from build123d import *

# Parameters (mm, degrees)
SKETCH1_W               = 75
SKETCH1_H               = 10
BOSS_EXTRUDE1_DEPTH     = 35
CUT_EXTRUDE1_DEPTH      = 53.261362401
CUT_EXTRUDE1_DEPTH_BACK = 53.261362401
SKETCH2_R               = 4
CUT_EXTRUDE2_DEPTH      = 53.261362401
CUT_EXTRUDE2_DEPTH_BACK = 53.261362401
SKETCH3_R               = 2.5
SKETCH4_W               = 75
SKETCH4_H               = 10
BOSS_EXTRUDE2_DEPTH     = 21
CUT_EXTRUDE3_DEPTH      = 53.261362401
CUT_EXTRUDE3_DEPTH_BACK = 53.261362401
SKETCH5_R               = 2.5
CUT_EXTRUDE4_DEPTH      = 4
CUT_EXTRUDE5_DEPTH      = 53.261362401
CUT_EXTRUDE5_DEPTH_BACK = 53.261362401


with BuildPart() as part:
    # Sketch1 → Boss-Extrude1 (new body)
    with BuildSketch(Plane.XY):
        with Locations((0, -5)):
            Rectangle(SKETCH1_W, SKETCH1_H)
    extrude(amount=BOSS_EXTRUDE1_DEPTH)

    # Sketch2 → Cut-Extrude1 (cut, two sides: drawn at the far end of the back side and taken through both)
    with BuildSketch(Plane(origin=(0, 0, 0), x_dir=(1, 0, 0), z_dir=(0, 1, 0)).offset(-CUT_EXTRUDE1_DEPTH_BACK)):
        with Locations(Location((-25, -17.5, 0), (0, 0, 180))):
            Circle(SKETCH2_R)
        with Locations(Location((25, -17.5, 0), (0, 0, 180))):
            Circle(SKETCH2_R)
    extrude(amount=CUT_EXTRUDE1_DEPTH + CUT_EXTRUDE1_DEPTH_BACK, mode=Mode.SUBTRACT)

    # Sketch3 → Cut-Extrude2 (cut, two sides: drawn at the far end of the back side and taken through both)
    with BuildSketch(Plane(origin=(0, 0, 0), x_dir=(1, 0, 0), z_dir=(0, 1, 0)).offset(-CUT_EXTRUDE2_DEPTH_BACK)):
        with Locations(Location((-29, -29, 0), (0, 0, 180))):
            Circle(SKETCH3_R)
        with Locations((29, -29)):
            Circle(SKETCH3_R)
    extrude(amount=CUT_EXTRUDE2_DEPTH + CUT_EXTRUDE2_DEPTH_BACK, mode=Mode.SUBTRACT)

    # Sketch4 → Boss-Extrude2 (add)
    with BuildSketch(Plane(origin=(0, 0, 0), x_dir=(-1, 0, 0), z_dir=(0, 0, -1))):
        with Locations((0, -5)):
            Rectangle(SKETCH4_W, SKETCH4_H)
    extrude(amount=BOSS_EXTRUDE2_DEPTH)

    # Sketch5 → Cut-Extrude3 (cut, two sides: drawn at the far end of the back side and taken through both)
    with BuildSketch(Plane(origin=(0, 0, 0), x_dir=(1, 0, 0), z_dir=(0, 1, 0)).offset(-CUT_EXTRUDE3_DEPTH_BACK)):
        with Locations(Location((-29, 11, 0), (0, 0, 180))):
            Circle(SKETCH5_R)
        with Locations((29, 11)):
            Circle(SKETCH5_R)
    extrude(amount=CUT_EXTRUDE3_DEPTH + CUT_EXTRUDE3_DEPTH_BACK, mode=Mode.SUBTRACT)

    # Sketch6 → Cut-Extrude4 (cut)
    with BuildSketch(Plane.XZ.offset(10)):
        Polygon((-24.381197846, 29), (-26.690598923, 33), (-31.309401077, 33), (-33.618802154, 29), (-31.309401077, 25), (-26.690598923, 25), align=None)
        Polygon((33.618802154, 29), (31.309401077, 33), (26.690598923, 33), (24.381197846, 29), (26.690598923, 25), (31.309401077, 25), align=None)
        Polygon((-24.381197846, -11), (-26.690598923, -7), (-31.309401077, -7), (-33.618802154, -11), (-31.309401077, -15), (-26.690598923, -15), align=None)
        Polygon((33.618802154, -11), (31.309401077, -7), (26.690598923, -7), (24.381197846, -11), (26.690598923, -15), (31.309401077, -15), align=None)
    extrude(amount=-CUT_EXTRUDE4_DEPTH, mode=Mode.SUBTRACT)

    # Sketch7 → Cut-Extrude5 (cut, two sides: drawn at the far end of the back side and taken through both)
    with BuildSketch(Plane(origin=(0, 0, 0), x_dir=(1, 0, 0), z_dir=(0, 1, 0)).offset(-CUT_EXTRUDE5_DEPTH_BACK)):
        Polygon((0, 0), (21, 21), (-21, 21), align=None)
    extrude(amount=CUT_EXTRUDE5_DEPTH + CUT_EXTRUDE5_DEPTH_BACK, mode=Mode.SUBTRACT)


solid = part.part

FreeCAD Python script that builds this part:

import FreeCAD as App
import Part
import Sketcher
Q = App.Units.Quantity

doc = App.newDocument("Part")
body = doc.addObject("PartDesign::Body", "Body")

sketch1 = body.newObject("Sketcher::SketchObject", "Sketch")
sketch1.AttachmentSupport = (doc.getObject("XY_Plane"), [""])
sketch1.MapMode = "FlatFace"
sketch1.addGeometry([
    Part.LineSegment(App.Vector(-37.5, 0, 0), App.Vector(-37.5, -10, 0)),
    Part.LineSegment(App.Vector(-37.5, -10, 0), App.Vector(37.5, -10, 0)),
    Part.LineSegment(App.Vector(37.5, -10, 0), App.Vector(37.5, 0, 0)),
    Part.LineSegment(App.Vector(37.5, 0, 0), App.Vector(-37.5, 0, 0)),
], False)
sketch1.addConstraint([
    Sketcher.Constraint("Coincident", 0, 2, 1, 1),
    Sketcher.Constraint("Coincident", 1, 2, 2, 1),
    Sketcher.Constraint("Coincident", 2, 2, 3, 1),
    Sketcher.Constraint("Coincident", 3, 2, 0, 1),
    Sketcher.Constraint("Vertical", 0),
    Sketcher.Constraint("Horizontal", 1),
    Sketcher.Constraint("Vertical", 2),
    Sketcher.Constraint("Horizontal", 3),
    Sketcher.Constraint("Symmetric", 2, 2, 3, 2, -1, 1),
    Sketcher.Constraint("DistanceX", 1, 1, 1, 2, 75.0),
    Sketcher.Constraint("DistanceY", 0, 2, 0, 1, 10.0),
])
pad1 = body.newObject("PartDesign::Pad", "Pad")
pad1.Profile = sketch1
pad1.Length = 35

sketch2 = body.newObject("Sketcher::SketchObject", "Sketch001")
sketch2.AttachmentSupport = (doc.getObject("XZ_Plane"), [""])
sketch2.MapMode = "FlatFace"
sketch2.addGeometry([
    Part.Circle(App.Vector(-25, 17.5, 0), App.Vector(0, 0, 1), 4),
    Part.Circle(App.Vector(25, 17.5, 0), App.Vector(0, 0, 1), 4),
], False)
sketch2.addConstraint([
    Sketcher.Constraint("Equal", 0, 1),
    Sketcher.Constraint("Symmetric", 0, 3, 1, 3, -2),
    Sketcher.Constraint("Diameter", 0, 8.0),
    Sketcher.Constraint("DistanceX", 0, 3, -1, 1, 25.0),
    Sketcher.Constraint("DistanceY", -1, 1, 0, 3, 17.5),
])
pocket1 = body.newObject("PartDesign::Pocket", "Pocket")
pocket1.Profile = sketch2
pocket1.Type = "ThroughAll"
pocket1.Midplane = True

sketch3 = body.newObject("Sketcher::SketchObject", "Sketch002")
sketch3.AttachmentSupport = (doc.getObject("XZ_Plane"), [""])
sketch3.MapMode = "FlatFace"
sketch3.addGeometry([
    Part.Circle(App.Vector(-29, 29, 0), App.Vector(0, 0, 1), 2.5),
    Part.Circle(App.Vector(29, 29, 0), App.Vector(0, 0, 1), 2.5),
], False)
sketch3.addConstraint([
    Sketcher.Constraint("Equal", 0, 1),
    Sketcher.Constraint("Symmetric", 0, 3, 1, 3, -2),
    Sketcher.Constraint("Diameter", 0, 5.0),
    Sketcher.Constraint("DistanceX", 0, 3, -1, 1, 29.0),
    Sketcher.Constraint("DistanceY", -1, 1, 0, 3, 29.0),
])
pocket2 = body.newObject("PartDesign::Pocket", "Pocket001")
pocket2.Profile = sketch3
pocket2.Type = "ThroughAll"
pocket2.Midplane = True

sketch4 = body.newObject("Sketcher::SketchObject", "Sketch003")
sketch4.AttachmentSupport = (doc.getObject("XY_Plane"), [""])
sketch4.MapMode = "FlatFace"
sketch4.addGeometry([
    Part.LineSegment(App.Vector(37.5, 0, 0), App.Vector(37.5, -10, 0)),
    Part.LineSegment(App.Vector(37.5, -10, 0), App.Vector(-37.5, -10, 0)),
    Part.LineSegment(App.Vector(-37.5, -10, 0), App.Vector(-37.5, 0, 0)),
    Part.LineSegment(App.Vector(-37.5, 0, 0), App.Vector(37.5, 0, 0)),
], False)
sketch4.addConstraint([
    Sketcher.Constraint("Coincident", 0, 2, 1, 1),
    Sketcher.Constraint("Coincident", 1, 2, 2, 1),
    Sketcher.Constraint("Coincident", 2, 2, 3, 1),
    Sketcher.Constraint("Coincident", 3, 2, 0, 1),
    Sketcher.Constraint("Vertical", 0),
    Sketcher.Constraint("Horizontal", 1),
    Sketcher.Constraint("Vertical", 2),
    Sketcher.Constraint("Horizontal", 3),
    Sketcher.Constraint("Symmetric", 2, 2, 3, 2, -1, 1),
    Sketcher.Constraint("DistanceX", 1, 2, 1, 1, 75.0),
    Sketcher.Constraint("DistanceY", 0, 2, 0, 1, 10.0),
])
pad2 = body.newObject("PartDesign::Pad", "Pad001")
pad2.Profile = sketch4
pad2.Length = 21
pad2.Reversed = True

sketch5 = body.newObject("Sketcher::SketchObject", "Sketch004")
sketch5.AttachmentSupport = (doc.getObject("XZ_Plane"), [""])
sketch5.MapMode = "FlatFace"
sketch5.addGeometry([
    Part.Circle(App.Vector(-29, -11, 0), App.Vector(0, 0, 1), 2.5),
    Part.Circle(App.Vector(29, -11, 0), App.Vector(0, 0, 1), 2.5),
], False)
sketch5.addConstraint([
    Sketcher.Constraint("Equal", 0, 1),
    Sketcher.Constraint("Symmetric", 0, 3, 1, 3, -2),
    Sketcher.Constraint("Diameter", 0, 5.0),
    Sketcher.Constraint("DistanceX", 0, 3, -1, 1, 29.0),
    Sketcher.Constraint("DistanceY", 0, 3, -1, 1, 11.0),
])
pocket3 = body.newObject("PartDesign::Pocket", "Pocket002")
pocket3.Profile = sketch5
pocket3.Type = "ThroughAll"
pocket3.Midplane = True

sketch6 = body.newObject("Sketcher::SketchObject", "Sketch005")
sketch6.AttachmentSupport = (doc.getObject("XZ_Plane"), [""])
sketch6.MapMode = "FlatFace"
sketch6.AttachmentOffset = App.Placement(App.Vector(0, 0, 10), App.Rotation())
sketch6.addGeometry([
    Part.LineSegment(App.Vector(-24.381198, 29, 0), App.Vector(-26.690599, 33, 0)),
    Part.LineSegment(App.Vector(-26.690599, 33, 0), App.Vector(-31.309401, 33, 0)),
    Part.LineSegment(App.Vector(-31.309401, 33, 0), App.Vector(-33.618802, 29, 0)),
    Part.LineSegment(App.Vector(-33.618802, 29, 0), App.Vector(-31.309401, 25, 0)),
    Part.LineSegment(App.Vector(-31.309401, 25, 0), App.Vector(-26.690599, 25, 0)),
    Part.LineSegment(App.Vector(-26.690599, 25, 0), App.Vector(-24.381198, 29, 0)),
    Part.LineSegment(App.Vector(33.618802, 29, 0), App.Vector(31.309401, 33, 0)),
    Part.LineSegment(App.Vector(31.309401, 33, 0), App.Vector(26.690599, 33, 0)),
    Part.LineSegment(App.Vector(26.690599, 33, 0), App.Vector(24.381198, 29, 0)),
    Part.LineSegment(App.Vector(24.381198, 29, 0), App.Vector(26.690599, 25, 0)),
    Part.LineSegment(App.Vector(26.690599, 25, 0), App.Vector(31.309401, 25, 0)),
    Part.LineSegment(App.Vector(31.309401, 25, 0), App.Vector(33.618802, 29, 0)),
    Part.LineSegment(App.Vector(-24.381198, -11, 0), App.Vector(-26.690599, -7, 0)),
    Part.LineSegment(App.Vector(-26.690599, -7, 0), App.Vector(-31.309401, -7, 0)),
    Part.LineSegment(App.Vector(-31.309401, -7, 0), App.Vector(-33.618802, -11, 0)),
    Part.LineSegment(App.Vector(-33.618802, -11, 0), App.Vector(-31.309401, -15, 0)),
    Part.LineSegment(App.Vector(-31.309401, -15, 0), App.Vector(-26.690599, -15, 0)),
    Part.LineSegment(App.Vector(-26.690599, -15, 0), App.Vector(-24.381198, -11, 0)),
    Part.LineSegment(App.Vector(33.618802, -11, 0), App.Vector(31.309401, -7, 0)),
    Part.LineSegment(App.Vector(31.309401, -7, 0), App.Vector(26.690599, -7, 0)),
    Part.LineSegment(App.Vector(26.690599, -7, 0), App.Vector(24.381198, -11, 0)),
    Part.LineSegment(App.Vector(24.381198, -11, 0), App.Vector(26.690599, -15, 0)),
    Part.LineSegment(App.Vector(26.690599, -15, 0), App.Vector(31.309401, -15, 0)),
    Part.LineSegment(App.Vector(31.309401, -15, 0), App.Vector(33.618802, -11, 0)),
], False)
sketch6.addConstraint([
    Sketcher.Constraint("Coincident", 0, 2, 1, 1),
    Sketcher.Constraint("Coincident", 1, 2, 2, 1),
    Sketcher.Constraint("Coincident", 2, 2, 3, 1),
    Sketcher.Constraint("Coincident", 3, 2, 4, 1),
    Sketcher.Constraint("Coincident", 4, 2, 5, 1),
    Sketcher.Constraint("Coincident", 5, 2, 0, 1),
    Sketcher.Constraint("Coincident", 6, 2, 7, 1),
    Sketcher.Constraint("Coincident", 7, 2, 8, 1),
    Sketcher.Constraint("Coincident", 8, 2, 9, 1),
    Sketcher.Constraint("Coincident", 9, 2, 10, 1),
    Sketcher.Constraint("Coincident", 10, 2, 11, 1),
    Sketcher.Constraint("Coincident", 11, 2, 6, 1),
    Sketcher.Constraint("Coincident", 12, 2, 13, 1),
    Sketcher.Constraint("Coincident", 13, 2, 14, 1),
    Sketcher.Constraint("Coincident", 14, 2, 15, 1),
    Sketcher.Constraint("Coincident", 15, 2, 16, 1),
    Sketcher.Constraint("Coincident", 16, 2, 17, 1),
    Sketcher.Constraint("Coincident", 17, 2, 12, 1),
    Sketcher.Constraint("Coincident", 18, 2, 19, 1),
    Sketcher.Constraint("Coincident", 19, 2, 20, 1),
    Sketcher.Constraint("Coincident", 20, 2, 21, 1),
    Sketcher.Constraint("Coincident", 21, 2, 22, 1),
    Sketcher.Constraint("Coincident", 22, 2, 23, 1),
    Sketcher.Constraint("Coincident", 23, 2, 18, 1),
    Sketcher.Constraint("Horizontal", 1),
    Sketcher.Constraint("Horizontal", 4),
    Sketcher.Constraint("Horizontal", 7),
    Sketcher.Constraint("Horizontal", 10),
    Sketcher.Constraint("Horizontal", 13),
    Sketcher.Constraint("Horizontal", 16),
    Sketcher.Constraint("Horizontal", 19),
    Sketcher.Constraint("Horizontal", 22),
    Sketcher.Constraint("Symmetric", 1, 2, 6, 2, -2),
    Sketcher.Constraint("Symmetric", 5, 2, 8, 2, -2),
    Sketcher.Constraint("Symmetric", 4, 2, 9, 2, -2),
    Sketcher.Constraint("Symmetric", 2, 2, 11, 2, -2),
    Sketcher.Constraint("Symmetric", 13, 2, 18, 2, -2),
    Sketcher.Constraint("Symmetric", 17, 2, 20, 2, -2),
    Sketcher.Constraint("Symmetric", 16, 2, 21, 2, -2),
    Sketcher.Constraint("Symmetric", 14, 2, 23, 2, -2),
    Sketcher.Constraint("Parallel", 0, 3),
    Sketcher.Constraint("Parallel", 2, 5),
    Sketcher.Constraint("Parallel", 3, 6),
    Sketcher.Constraint("Parallel", 5, 8),
    Sketcher.Constraint("Parallel", 8, 11),
    Sketcher.Constraint("Parallel", 9, 12),
    Sketcher.Constraint("Parallel", 11, 14),
    Sketcher.Constraint("Parallel", 12, 15),
    Sketcher.Constraint("Parallel", 14, 17),
    Sketcher.Constraint("Parallel", 17, 20),
    Sketcher.Constraint("Parallel", 20, 23),
    Sketcher.Constraint("Horizontal", 2, 2, 5, 2),
    Sketcher.Constraint("Horizontal", 14, 2, 17, 2),
    Sketcher.Constraint("Vertical", 1, 2, 3, 2),
    Sketcher.Constraint("Vertical", 4, 2, 12, 2),
    Sketcher.Constraint("Vertical", 3, 2, 13, 2),
    Sketcher.Constraint("Vertical", 2, 2, 14, 2),
    Sketcher.Constraint("Vertical", 13, 2, 15, 2),
    Sketcher.Constraint("Angle", 0, Q("120 deg")),
    Sketcher.Constraint("DistanceY", -1, 1, 0, 2, 33.0),
    Sketcher.Constraint("DistanceY", -1, 1, 2, 2, 29.0),
    Sketcher.Constraint("DistanceY", 12, 2, -1, 1, 7.0),
    Sketcher.Constraint("DistanceX", 0, 2, 6, 2, 58.0),
    Sketcher.Constraint("DistanceX", 0, 2, -1, 1, 26.690599),
])
pocket4 = body.newObject("PartDesign::Pocket", "Pocket003")
pocket4.Profile = sketch6
pocket4.Length = 4

sketch7 = body.newObject("Sketcher::SketchObject", "Sketch006")
sketch7.AttachmentSupport = (doc.getObject("XZ_Plane"), [""])
sketch7.MapMode = "FlatFace"
sketch7.addGeometry([
    Part.LineSegment(App.Vector(0, 0, 0), App.Vector(21, -21, 0)),
    Part.LineSegment(App.Vector(21, -21, 0), App.Vector(-21, -21, 0)),
    Part.LineSegment(App.Vector(-21, -21, 0), App.Vector(0, 0, 0)),
], False)
sketch7.addConstraint([
    Sketcher.Constraint("Coincident", 0, 2, 1, 1),
    Sketcher.Constraint("Coincident", 1, 2, 2, 1),
    Sketcher.Constraint("Coincident", 2, 2, 0, 1),
    Sketcher.Constraint("Horizontal", 1),
    Sketcher.Constraint("Coincident", 2, 2, -1, 1),
    Sketcher.Constraint("Perpendicular", 0, 2),
    Sketcher.Constraint("Equal", 0, 2),
    Sketcher.Constraint("DistanceX", 1, 2, 1, 1, 42.0),
])
pocket5 = body.newObject("PartDesign::Pocket", "Pocket004")
pocket5.Profile = sketch7
pocket5.Type = "ThroughAll"
pocket5.Midplane = True

doc.recompute()
